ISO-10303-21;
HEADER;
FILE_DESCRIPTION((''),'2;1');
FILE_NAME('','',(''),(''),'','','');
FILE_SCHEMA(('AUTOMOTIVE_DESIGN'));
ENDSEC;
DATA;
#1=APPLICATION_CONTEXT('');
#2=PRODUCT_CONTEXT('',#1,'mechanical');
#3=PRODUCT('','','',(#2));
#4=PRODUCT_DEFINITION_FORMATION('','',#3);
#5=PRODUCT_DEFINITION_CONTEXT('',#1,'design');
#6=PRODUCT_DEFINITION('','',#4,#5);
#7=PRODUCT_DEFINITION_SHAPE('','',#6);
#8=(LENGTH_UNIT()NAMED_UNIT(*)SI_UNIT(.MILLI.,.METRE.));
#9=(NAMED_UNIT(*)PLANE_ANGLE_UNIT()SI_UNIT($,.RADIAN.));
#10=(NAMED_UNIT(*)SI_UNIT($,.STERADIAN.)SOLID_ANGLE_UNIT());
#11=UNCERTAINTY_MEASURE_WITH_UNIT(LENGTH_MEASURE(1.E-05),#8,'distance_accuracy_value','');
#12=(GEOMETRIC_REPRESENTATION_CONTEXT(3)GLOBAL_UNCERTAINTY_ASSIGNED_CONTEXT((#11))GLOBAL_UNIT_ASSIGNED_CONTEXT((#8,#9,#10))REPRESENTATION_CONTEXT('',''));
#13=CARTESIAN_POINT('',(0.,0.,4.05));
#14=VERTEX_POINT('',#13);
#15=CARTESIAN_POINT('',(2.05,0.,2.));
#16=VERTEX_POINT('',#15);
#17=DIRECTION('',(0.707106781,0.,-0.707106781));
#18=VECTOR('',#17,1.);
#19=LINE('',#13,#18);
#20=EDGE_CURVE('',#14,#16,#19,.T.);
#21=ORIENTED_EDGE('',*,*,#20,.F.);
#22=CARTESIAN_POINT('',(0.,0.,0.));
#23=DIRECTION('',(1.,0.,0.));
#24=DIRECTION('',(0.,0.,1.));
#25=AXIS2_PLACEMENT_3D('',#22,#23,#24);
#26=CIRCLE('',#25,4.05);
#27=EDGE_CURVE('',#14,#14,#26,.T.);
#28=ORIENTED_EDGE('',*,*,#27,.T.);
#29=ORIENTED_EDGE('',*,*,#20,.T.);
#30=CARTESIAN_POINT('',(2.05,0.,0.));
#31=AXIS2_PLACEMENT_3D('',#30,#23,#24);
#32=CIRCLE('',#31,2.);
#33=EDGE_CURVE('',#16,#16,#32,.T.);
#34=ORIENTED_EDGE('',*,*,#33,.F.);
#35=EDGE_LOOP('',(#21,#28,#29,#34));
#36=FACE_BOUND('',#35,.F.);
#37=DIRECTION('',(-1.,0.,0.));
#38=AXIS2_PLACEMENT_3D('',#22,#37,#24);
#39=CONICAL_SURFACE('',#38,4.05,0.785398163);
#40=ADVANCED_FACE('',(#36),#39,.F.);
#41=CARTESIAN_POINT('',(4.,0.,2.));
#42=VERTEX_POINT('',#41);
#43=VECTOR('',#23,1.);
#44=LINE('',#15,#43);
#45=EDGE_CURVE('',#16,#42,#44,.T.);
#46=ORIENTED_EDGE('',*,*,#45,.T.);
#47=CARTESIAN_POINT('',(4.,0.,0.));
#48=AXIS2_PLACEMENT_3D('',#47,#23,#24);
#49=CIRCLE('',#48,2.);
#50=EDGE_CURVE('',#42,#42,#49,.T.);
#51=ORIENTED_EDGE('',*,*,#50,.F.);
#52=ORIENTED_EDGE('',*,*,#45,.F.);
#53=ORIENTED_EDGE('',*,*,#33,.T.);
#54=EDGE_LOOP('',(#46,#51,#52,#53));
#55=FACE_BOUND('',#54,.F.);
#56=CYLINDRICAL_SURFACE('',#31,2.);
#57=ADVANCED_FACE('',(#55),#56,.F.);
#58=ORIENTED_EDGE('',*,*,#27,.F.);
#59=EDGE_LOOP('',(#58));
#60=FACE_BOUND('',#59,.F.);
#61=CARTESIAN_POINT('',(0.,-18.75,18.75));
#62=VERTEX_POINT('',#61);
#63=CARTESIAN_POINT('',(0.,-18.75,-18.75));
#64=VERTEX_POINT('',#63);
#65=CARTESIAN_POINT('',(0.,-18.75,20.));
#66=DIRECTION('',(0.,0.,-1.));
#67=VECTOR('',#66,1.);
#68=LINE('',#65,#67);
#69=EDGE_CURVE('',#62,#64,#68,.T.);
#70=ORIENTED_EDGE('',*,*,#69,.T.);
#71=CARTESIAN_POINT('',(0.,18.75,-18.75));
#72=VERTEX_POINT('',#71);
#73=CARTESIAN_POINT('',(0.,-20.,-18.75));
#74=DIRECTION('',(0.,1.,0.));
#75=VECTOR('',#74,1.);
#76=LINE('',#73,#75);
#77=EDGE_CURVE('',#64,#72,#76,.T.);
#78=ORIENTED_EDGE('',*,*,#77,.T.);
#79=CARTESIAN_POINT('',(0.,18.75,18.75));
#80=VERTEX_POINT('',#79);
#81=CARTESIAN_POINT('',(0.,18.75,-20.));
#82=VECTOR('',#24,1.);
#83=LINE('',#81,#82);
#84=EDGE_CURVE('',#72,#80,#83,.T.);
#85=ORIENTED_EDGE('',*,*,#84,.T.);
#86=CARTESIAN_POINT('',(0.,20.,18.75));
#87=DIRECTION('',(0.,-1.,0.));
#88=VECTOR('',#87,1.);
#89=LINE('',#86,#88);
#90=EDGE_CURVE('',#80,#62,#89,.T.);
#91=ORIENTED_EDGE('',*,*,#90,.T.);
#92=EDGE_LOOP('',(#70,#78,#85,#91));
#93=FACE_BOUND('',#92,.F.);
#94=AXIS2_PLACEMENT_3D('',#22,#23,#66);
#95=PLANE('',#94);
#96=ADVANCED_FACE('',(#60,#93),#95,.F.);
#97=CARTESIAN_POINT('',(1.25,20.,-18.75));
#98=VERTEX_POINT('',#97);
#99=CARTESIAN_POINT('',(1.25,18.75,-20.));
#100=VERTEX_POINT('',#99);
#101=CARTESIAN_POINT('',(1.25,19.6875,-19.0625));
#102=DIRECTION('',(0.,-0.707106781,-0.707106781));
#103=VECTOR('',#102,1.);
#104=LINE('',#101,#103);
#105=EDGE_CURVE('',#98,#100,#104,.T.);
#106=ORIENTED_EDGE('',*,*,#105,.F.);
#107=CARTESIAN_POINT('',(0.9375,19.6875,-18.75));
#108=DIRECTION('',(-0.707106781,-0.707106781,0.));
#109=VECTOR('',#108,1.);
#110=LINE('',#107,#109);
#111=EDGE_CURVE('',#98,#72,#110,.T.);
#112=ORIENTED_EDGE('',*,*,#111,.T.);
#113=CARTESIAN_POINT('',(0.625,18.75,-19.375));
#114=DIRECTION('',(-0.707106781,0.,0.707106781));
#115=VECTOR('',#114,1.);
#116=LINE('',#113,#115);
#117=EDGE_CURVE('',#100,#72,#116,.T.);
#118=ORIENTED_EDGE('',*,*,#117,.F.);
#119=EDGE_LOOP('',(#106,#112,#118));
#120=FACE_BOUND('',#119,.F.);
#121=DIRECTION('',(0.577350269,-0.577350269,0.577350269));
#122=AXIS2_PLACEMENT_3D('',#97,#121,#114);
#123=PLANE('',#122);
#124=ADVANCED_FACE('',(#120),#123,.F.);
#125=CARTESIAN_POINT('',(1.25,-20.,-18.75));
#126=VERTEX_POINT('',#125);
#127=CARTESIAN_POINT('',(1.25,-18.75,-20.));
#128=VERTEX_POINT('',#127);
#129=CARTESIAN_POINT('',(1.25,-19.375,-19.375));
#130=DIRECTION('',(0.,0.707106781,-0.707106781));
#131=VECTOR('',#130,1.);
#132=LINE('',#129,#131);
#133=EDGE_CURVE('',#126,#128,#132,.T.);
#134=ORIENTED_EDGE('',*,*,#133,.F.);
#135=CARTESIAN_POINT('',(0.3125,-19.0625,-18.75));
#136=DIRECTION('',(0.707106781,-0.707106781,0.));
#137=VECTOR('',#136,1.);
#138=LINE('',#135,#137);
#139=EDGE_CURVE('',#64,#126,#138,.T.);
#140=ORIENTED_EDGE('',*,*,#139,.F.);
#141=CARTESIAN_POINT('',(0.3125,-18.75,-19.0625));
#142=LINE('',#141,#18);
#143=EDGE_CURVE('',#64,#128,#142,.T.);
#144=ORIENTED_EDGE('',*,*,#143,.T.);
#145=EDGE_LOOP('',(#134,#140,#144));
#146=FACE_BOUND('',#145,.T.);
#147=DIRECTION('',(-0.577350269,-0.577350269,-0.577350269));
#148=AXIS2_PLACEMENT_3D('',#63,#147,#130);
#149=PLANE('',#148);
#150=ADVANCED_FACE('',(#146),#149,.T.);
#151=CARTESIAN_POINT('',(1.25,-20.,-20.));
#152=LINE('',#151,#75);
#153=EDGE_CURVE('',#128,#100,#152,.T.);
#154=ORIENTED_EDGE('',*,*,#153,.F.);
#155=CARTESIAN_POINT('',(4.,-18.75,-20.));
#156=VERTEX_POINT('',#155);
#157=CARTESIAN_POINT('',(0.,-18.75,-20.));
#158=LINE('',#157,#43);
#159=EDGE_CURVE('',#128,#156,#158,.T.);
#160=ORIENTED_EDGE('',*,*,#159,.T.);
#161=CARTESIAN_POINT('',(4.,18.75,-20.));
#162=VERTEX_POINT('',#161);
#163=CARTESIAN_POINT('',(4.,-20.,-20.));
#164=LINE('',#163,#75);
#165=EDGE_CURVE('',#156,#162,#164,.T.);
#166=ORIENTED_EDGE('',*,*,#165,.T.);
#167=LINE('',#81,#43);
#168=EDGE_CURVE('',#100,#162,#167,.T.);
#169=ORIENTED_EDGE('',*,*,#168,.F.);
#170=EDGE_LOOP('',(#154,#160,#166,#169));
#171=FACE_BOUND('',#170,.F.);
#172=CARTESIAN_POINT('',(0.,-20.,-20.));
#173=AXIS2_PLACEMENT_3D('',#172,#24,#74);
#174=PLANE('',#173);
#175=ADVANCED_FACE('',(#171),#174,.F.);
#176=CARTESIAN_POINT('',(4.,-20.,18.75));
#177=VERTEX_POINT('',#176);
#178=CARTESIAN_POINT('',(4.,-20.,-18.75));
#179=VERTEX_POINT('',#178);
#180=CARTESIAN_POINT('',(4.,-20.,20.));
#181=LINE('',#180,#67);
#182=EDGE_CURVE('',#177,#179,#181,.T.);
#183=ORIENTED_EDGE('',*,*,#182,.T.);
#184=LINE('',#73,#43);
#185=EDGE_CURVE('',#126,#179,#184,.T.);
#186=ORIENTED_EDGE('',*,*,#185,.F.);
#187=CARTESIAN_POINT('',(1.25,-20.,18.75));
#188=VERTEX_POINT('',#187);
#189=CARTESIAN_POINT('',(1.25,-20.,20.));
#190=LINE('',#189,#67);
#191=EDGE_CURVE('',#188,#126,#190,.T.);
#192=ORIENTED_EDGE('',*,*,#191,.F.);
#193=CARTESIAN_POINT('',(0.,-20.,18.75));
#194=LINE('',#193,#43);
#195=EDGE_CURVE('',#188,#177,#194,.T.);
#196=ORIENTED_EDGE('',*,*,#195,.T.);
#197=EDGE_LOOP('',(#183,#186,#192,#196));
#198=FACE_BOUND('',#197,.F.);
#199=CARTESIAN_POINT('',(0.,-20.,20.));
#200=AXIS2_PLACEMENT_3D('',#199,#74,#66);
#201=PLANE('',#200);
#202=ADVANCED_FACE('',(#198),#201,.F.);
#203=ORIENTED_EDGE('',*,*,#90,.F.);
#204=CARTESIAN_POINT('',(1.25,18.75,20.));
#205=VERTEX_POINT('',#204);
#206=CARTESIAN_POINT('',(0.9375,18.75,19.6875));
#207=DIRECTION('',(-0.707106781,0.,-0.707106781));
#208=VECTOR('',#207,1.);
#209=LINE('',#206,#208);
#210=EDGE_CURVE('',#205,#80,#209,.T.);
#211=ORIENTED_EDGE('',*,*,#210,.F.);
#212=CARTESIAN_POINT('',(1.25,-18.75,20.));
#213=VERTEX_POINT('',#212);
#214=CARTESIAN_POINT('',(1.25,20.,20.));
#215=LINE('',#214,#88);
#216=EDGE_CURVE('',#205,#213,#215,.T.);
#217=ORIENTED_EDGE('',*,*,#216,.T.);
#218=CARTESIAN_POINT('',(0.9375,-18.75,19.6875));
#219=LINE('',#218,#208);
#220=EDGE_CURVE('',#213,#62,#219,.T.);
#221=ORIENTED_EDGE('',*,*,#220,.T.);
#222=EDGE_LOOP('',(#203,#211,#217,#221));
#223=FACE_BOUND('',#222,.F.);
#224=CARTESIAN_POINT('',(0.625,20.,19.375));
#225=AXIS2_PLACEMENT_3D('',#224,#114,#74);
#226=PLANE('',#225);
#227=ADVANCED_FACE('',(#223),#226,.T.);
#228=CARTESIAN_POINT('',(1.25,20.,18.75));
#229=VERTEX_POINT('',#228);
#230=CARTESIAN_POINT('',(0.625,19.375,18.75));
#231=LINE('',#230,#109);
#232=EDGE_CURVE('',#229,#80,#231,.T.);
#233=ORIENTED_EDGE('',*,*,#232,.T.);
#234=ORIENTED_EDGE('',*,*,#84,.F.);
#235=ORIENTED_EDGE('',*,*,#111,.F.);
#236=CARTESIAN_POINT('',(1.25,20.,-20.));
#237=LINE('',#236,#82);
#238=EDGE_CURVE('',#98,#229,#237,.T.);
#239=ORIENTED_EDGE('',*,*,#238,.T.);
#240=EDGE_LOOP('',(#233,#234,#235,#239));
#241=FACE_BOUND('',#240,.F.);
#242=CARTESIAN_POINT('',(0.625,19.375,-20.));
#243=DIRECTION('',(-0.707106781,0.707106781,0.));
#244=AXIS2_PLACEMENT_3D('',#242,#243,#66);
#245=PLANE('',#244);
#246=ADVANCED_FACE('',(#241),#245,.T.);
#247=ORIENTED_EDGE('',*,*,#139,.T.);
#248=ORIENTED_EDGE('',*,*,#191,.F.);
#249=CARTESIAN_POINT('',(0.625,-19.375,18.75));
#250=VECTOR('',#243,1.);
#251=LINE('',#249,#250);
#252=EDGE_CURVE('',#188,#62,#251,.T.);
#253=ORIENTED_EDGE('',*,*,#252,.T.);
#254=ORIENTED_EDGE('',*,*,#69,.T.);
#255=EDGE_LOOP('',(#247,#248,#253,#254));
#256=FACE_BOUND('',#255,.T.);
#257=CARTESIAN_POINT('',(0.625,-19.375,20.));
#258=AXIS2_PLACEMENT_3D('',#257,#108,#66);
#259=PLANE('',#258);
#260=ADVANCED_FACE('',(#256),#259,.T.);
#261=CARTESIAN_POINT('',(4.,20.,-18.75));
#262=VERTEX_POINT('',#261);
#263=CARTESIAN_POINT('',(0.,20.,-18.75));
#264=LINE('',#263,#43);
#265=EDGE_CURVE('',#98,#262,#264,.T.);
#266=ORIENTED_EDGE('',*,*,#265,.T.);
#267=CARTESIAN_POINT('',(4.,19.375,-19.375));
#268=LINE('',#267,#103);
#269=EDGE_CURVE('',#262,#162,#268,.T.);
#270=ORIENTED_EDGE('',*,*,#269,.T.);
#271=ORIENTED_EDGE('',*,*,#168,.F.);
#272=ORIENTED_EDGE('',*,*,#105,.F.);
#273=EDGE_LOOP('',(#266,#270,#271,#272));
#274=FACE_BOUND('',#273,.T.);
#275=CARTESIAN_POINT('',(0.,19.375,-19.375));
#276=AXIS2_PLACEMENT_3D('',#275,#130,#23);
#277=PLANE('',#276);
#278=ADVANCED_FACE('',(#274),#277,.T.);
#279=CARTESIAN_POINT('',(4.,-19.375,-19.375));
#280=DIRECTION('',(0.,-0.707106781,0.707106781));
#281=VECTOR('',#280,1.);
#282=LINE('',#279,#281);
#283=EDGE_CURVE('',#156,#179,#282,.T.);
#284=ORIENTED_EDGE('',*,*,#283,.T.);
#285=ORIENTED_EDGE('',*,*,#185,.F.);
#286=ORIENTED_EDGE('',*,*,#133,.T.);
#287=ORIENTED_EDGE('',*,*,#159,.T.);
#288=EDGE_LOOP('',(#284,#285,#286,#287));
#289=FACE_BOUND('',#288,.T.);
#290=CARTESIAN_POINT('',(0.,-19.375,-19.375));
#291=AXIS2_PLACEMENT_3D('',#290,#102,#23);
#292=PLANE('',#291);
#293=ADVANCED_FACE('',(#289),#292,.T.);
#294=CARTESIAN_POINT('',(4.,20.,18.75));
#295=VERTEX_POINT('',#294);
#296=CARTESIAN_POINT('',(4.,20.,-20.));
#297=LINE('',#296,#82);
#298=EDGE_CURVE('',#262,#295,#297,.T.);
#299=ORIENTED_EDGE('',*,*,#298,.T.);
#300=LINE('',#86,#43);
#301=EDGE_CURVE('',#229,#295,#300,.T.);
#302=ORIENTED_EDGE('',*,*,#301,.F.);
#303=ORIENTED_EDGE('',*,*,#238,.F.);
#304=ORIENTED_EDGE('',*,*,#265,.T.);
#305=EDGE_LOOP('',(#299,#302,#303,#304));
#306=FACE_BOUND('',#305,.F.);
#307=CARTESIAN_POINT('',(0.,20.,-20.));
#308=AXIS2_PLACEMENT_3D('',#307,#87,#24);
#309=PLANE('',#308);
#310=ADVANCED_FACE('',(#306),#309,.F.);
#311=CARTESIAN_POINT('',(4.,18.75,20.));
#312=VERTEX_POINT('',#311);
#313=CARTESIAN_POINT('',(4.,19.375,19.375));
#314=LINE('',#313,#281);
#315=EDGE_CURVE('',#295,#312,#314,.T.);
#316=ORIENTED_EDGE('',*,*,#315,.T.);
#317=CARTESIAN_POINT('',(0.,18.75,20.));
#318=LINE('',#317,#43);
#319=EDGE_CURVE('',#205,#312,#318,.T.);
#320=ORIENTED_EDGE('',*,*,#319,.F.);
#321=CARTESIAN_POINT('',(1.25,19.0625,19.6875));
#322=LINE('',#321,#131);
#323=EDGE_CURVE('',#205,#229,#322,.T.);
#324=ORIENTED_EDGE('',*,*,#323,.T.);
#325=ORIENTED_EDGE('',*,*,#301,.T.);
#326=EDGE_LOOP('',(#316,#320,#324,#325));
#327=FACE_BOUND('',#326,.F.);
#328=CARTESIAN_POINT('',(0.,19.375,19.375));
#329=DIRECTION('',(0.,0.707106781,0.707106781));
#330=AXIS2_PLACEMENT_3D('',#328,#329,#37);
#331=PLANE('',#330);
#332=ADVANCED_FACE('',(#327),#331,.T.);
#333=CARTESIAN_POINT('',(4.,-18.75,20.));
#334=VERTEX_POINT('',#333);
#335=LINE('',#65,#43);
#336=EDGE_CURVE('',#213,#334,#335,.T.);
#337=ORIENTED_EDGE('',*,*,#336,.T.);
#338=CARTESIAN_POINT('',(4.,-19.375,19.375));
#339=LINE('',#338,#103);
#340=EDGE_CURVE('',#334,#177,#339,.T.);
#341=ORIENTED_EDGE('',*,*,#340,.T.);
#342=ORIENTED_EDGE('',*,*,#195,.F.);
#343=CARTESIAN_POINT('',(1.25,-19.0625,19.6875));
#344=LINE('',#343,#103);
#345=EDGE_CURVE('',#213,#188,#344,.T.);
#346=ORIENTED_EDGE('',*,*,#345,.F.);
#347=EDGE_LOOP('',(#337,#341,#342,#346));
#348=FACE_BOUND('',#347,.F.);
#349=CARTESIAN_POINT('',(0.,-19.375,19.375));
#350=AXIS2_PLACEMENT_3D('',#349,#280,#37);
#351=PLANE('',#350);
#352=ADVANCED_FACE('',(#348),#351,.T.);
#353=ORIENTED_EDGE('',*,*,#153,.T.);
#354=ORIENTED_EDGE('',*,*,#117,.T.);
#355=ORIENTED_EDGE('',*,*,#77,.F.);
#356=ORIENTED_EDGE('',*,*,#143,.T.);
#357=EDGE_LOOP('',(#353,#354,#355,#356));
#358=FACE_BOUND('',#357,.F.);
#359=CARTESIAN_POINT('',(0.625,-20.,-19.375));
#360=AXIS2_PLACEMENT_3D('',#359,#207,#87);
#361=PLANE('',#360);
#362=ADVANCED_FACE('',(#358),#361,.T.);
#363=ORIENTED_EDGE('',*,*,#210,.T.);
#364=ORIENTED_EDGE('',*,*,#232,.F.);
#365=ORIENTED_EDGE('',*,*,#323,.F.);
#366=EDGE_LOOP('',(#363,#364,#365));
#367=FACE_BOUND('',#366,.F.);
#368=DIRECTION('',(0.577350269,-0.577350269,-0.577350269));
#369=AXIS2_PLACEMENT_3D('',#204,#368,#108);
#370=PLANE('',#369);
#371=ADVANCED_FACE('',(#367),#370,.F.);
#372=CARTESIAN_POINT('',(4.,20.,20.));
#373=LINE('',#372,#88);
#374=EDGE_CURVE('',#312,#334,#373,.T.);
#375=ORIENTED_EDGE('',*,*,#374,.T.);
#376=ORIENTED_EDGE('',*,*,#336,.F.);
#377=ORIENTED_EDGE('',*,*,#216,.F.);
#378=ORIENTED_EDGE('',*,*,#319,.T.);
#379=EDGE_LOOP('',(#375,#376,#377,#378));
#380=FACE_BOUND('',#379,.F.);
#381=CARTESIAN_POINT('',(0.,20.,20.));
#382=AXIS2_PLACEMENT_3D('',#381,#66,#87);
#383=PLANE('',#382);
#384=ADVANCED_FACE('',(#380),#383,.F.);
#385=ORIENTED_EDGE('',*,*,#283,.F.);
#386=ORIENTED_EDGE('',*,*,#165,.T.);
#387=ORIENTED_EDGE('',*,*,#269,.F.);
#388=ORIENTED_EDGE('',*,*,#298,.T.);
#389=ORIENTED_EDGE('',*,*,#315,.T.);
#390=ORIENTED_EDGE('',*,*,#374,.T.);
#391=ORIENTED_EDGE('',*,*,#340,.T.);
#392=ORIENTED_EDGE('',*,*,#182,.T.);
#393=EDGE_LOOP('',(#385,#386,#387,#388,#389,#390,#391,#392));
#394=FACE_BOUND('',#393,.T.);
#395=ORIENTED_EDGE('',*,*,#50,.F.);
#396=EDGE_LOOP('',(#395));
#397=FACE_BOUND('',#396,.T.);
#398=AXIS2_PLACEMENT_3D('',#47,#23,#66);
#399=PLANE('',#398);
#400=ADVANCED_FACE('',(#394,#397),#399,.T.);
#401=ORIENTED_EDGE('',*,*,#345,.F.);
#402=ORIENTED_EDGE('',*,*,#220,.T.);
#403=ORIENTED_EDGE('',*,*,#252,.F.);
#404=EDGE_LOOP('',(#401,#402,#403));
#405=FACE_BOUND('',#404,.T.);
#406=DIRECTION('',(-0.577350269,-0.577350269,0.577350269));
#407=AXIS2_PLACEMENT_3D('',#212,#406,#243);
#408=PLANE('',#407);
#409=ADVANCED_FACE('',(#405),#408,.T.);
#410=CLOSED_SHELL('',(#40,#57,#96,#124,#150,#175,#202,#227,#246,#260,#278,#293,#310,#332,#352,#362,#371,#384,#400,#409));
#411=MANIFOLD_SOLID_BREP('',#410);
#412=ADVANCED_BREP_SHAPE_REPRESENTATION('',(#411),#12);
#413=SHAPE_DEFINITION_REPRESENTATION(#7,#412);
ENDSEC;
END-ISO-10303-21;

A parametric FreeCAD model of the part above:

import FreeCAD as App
import Part
import Sketcher
from FreeCAD import Vector
Q = App.Units.Quantity


def edges_at(feature, points):
    """Names of the edges that pass closest to the given points."""
    edges = feature.Shape.Edges
    near = lambda p: min(range(len(edges)), key=lambda i: edges[i].distToShape(Part.Vertex(*p))[0])
    return sorted({f"Edge{near(p) + 1}" for p in points})

doc = App.newDocument("Part")
body = doc.addObject("PartDesign::Body", "Body")

sketch1 = doc.addObject("Sketcher::SketchObject", "Sketch")
body.addObject(sketch1)
sketch1.AttachmentSupport = (doc.YZ_Plane, [""])
sketch1.MapMode = "FlatFace"
sketch1.addGeometry(Part.LineSegment(Vector(20, -20, 0), Vector(20, 20, 0)), False)
sketch1.addGeometry(Part.LineSegment(Vector(20, 20, 0), Vector(-20, 20, 0)), False)
sketch1.addGeometry(Part.LineSegment(Vector(-20, 20, 0), Vector(-20, -20, 0)), False)
sketch1.addGeometry(Part.LineSegment(Vector(-20, -20, 0), Vector(20, -20, 0)), False)
sketch1.addConstraint(Sketcher.Constraint("Coincident", 0, 2, 1, 1))
sketch1.addConstraint(Sketcher.Constraint("Coincident", 1, 2, 2, 1))
sketch1.addConstraint(Sketcher.Constraint("Coincident", 2, 2, 3, 1))
sketch1.addConstraint(Sketcher.Constraint("Coincident", 3, 2, 0, 1))
sketch1.addConstraint(Sketcher.Constraint("Vertical", 0))
sketch1.addConstraint(Sketcher.Constraint("Horizontal", 1))
sketch1.addConstraint(Sketcher.Constraint("Vertical", 2))
sketch1.addConstraint(Sketcher.Constraint("Horizontal", 3))
sketch1.addConstraint(Sketcher.Constraint("Symmetric", 0, 2, 2, 2, -1, 1))
sketch1.addConstraint(Sketcher.Constraint("Equal", 3, 0))
sketch1.addConstraint(Sketcher.Constraint("DistanceX", 1, 2, 1, 1, Q("40 mm")))
pad1 = doc.addObject("PartDesign::Pad", "Pad")
body.addObject(pad1)
pad1.Profile = sketch1
pad1.Length = 4

sketch2 = doc.addObject("Sketcher::SketchObject", "Sketch001")
body.addObject(sketch2)
sketch2.AttachmentSupport = (doc.YZ_Plane, [""])
sketch2.MapMode = "FlatFace"
sketch2.addGeometry(Part.Circle(Vector(0, 0, 0), Vector(0, 0, 1), 2), False)
sketch2.addConstraint(Sketcher.Constraint("Coincident", 0, 3, -1, 1))
sketch2.addConstraint(Sketcher.Constraint("Diameter", 0, Q("4 mm")))
doc.recompute()
hole = doc.addObject("PartDesign::Hole", "Hole")
body.addObject(hole)
hole.Profile = sketch2
hole.ThreadType = "None"
hole.Diameter = 4
hole.DepthType = "Dimension"
hole.Depth = 4
hole.DrillPoint = "Flat"
hole.HoleCutType = "Countersink"
hole.HoleCutDiameter = 8.1
hole.HoleCutCountersinkAngle = 90
hole.Reversed = True
doc.recompute()

chamfer = doc.addObject("PartDesign::Chamfer", "Chamfer")
body.addObject(chamfer)
chamfer.Base = (hole, edges_at(hole, [
    (2, -20, -20),
    (0, -20, 0),
    (0, 0, -20),
    (2, 20, -20),
    (0, 20, 0),
    (2, 20, 20),
    (2, -20, 20),
    (0, 0, 20),
]))
chamfer.Size = 1.25

doc.recompute()
